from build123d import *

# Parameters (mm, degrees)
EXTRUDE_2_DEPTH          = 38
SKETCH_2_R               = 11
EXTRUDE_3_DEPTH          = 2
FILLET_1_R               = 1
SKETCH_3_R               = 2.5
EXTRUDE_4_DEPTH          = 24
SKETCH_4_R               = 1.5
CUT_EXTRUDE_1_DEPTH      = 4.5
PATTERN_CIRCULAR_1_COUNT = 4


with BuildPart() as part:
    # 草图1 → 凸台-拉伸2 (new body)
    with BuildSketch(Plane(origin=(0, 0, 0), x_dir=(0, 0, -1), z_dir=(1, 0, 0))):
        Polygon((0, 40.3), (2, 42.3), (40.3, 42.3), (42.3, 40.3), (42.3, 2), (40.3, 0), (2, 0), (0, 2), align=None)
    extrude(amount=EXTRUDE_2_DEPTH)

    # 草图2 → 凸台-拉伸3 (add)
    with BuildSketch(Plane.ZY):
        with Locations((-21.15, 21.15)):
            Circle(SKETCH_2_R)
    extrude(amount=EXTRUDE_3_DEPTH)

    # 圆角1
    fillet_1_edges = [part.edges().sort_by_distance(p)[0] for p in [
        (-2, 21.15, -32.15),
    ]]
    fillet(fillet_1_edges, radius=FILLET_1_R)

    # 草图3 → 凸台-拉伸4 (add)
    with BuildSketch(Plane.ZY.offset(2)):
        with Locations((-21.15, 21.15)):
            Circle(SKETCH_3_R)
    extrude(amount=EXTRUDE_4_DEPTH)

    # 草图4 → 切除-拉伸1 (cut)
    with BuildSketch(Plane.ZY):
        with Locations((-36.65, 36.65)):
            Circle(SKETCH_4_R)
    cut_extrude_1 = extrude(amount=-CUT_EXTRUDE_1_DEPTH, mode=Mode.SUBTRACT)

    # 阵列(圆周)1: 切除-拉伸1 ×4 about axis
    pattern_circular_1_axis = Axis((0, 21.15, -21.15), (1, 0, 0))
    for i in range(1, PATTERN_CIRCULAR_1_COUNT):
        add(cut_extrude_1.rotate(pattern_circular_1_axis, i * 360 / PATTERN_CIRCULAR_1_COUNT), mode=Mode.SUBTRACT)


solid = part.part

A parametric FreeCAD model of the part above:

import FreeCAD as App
import Part
import Sketcher
from FreeCAD import Vector


def edges_at(feature, points):
    """Names of the edges that pass closest to the given points."""
    edges = feature.Shape.Edges
    near = lambda p: min(range(len(edges)), key=lambda i: edges[i].distToShape(Part.Vertex(*p))[0])
    return sorted({f"Edge{near(p) + 1}" for p in points})

doc = App.newDocument("Part")
body = doc.addObject("PartDesign::Body", "Body")

# Sketch on YZ plane
sketch1 = doc.addObject("Sketcher::SketchObject", "Sketch")
body.addObject(sketch1)
sketch1.AttachmentSupport = (doc.YZ_Plane, [""])
sketch1.MapMode = "FlatFace"
sketch1.addGeometry([
    Part.LineSegment(Vector(42.3, -2, 0), Vector(40.3, 0, 0)),  # 0
    Part.LineSegment(Vector(40.3, 0, 0), Vector(2, 0, 0)),  # 1
    Part.LineSegment(Vector(2, 0, 0), Vector(0, -2, 0)),  # 2
    Part.LineSegment(Vector(0, -2, 0), Vector(0, -40.3, 0)),  # 3
    Part.LineSegment(Vector(0, -40.3, 0), Vector(2, -42.3, 0)),  # 4
    Part.LineSegment(Vector(2, -42.3, 0), Vector(40.3, -42.3, 0)),  # 5
    Part.LineSegment(Vector(40.3, -42.3, 0), Vector(42.3, -40.3, 0)),  # 6
    Part.LineSegment(Vector(42.3, -40.3, 0), Vector(42.3, -2, 0)),  # 7
], False)
sketch1.addConstraint([
    Sketcher.Constraint("Coincident", 0, 2, 1, 1),
    Sketcher.Constraint("Coincident", 1, 2, 2, 1),
    Sketcher.Constraint("Coincident", 2, 2, 3, 1),
    Sketcher.Constraint("Coincident", 3, 2, 4, 1),
    Sketcher.Constraint("Coincident", 4, 2, 5, 1),
    Sketcher.Constraint("Coincident", 5, 2, 6, 1),
    Sketcher.Constraint("Coincident", 6, 2, 7, 1),
    Sketcher.Constraint("Coincident", 7, 2, 0, 1),
    Sketcher.Constraint("Horizontal", 1),
    Sketcher.Constraint("Vertical", 3),
    Sketcher.Constraint("Horizontal", 5),
    Sketcher.Constraint("Vertical", 7),
    Sketcher.Constraint("PointOnObject", 0, 2, -1),
    Sketcher.Constraint("PointOnObject", 2, 2, -2),
    Sketcher.Constraint("Perpendicular", 0, 2),
    Sketcher.Constraint("Perpendicular", 2, 4),
    Sketcher.Constraint("Perpendicular", 4, 6),
    Sketcher.Constraint("Horizontal", 3, 2, 6, 2),
    Sketcher.Constraint("Horizontal", 2, 2, 7, 2),
    Sketcher.Constraint("Vertical", 1, 2, 4, 2),
    Sketcher.Constraint("Vertical", 0, 2, 5, 2),
    Sketcher.Constraint("Equal", 5, 3),
    Sketcher.Constraint("DistanceX", 1, 2, 1, 1, 38.3),
    Sketcher.Constraint("DistanceX", -1, 1, 1, 2, 2.0),
])
pad1 = doc.addObject("PartDesign::Pad", "Pad")
body.addObject(pad1)
pad1.Profile = sketch1
pad1.Length = 38

# Sketch on YZ plane
sketch2 = doc.addObject("Sketcher::SketchObject", "Sketch001")
body.addObject(sketch2)
sketch2.AttachmentSupport = (doc.YZ_Plane, [""])
sketch2.MapMode = "FlatFace"
sketch2.addGeometry(Part.Circle(Vector(21, -21, 0), Vector(0, 0, 1), 11), False)
sketch2.addConstraint([
    Sketcher.Constraint("Diameter", 0, 22.0),
    Sketcher.Constraint("DistanceX", -1, 1, 0, 3, 21.15),
    Sketcher.Constraint("DistanceY", 0, 3, -1, 1, 21.15),
])
pad2 = doc.addObject("PartDesign::Pad", "Pad001")
body.addObject(pad2)
pad2.Profile = sketch2
pad2.Length = 2
pad2.Reversed = True
doc.recompute()

fillet = doc.addObject("PartDesign::Fillet", "Fillet")
body.addObject(fillet)
fillet.Base = (pad2, edges_at(pad2, [(-2, 21.15, -32.15)]))
fillet.Radius = 1

# Sketch on YZ plane
sketch3 = doc.addObject("Sketcher::SketchObject", "Sketch002")
body.addObject(sketch3)
sketch3.AttachmentSupport = (doc.YZ_Plane, [""])
sketch3.MapMode = "FlatFace"
sketch3.AttachmentOffset = App.Placement(Vector(0, 0, -2), App.Rotation())
sketch3.addGeometry(Part.Circle(Vector(21.1, -21.1, 0), Vector(0, 0, 1), 2.5), False)
sketch3.addConstraint([
    Sketcher.Constraint("Diameter", 0, 5.0),
    Sketcher.Constraint("DistanceX", -1, 1, 0, 3, 21.15),
    Sketcher.Constraint("DistanceY", 0, 3, -1, 1, 21.15),
])
pad3 = doc.addObject("PartDesign::Pad", "Pad002")
body.addObject(pad3)
pad3.Profile = sketch3
pad3.Length = 24
pad3.Reversed = True

# Sketch on YZ plane
sketch4 = doc.addObject("Sketcher::SketchObject", "Sketch003")
body.addObject(sketch4)
sketch4.AttachmentSupport = (doc.YZ_Plane, [""])
sketch4.MapMode = "FlatFace"
sketch4.addGeometry(Part.Circle(Vector(36.6, -36.6, 0), Vector(0, 0, 1), 1.5), False)
sketch4.addConstraint([
    Sketcher.Constraint("Diameter", 0, 3.0),
    Sketcher.Constraint("DistanceX", -1, 1, 0, 3, 36.65),
    Sketcher.Constraint("DistanceY", 0, 3, -1, 1, 36.65),
])
pocket1 = doc.addObject("PartDesign::Pocket", "Pocket")
body.addObject(pocket1)
pocket1.Profile = sketch4
pocket1.Length = 4.5
pocket1.Reversed = True
doc.recompute()

datumline = doc.addObject("PartDesign::Line", "DatumLine")
body.addObject(datumline)
datumline.Placement = App.Placement(Vector(0, 21.15, -21.15), App.Rotation(Vector(0, 0, 1), Vector(1, 0, 0)))
polarpattern = doc.addObject("PartDesign::PolarPattern", "PolarPattern")
body.addObject(polarpattern)
polarpattern.Originals = [pocket1]
polarpattern.Axis = (datumline, [""])
polarpattern.Angle = 360
polarpattern.Occurrences = 4
body.Tip = polarpattern

doc.recompute()
